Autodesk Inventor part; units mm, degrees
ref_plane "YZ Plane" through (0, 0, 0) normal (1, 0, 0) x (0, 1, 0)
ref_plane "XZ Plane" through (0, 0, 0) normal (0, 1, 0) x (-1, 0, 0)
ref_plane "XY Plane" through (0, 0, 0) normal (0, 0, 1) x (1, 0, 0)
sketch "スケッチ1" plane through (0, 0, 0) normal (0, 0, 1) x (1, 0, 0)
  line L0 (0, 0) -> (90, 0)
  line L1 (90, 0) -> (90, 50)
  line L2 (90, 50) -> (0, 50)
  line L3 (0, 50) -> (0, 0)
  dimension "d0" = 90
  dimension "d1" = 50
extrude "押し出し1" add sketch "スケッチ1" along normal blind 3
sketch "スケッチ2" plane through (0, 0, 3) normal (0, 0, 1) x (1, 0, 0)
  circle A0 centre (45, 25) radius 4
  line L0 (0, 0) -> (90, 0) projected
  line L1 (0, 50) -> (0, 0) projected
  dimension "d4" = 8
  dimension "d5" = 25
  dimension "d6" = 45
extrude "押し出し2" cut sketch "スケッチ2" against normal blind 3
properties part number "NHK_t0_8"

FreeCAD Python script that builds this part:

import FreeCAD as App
import Part
import Sketcher


def add_polygon(sketch, points):
    """Adds a closed chain of lines whose ends are joined by coincident constraints."""
    first, n = sketch.GeometryCount, len(points)
    for a, b in zip(points, points[1:] + points[:1]):
        sketch.addGeometry(Part.LineSegment(App.Vector(*a, 0), App.Vector(*b, 0)), False)
    for i in range(n):
        sketch.addConstraint(Sketcher.Constraint("Coincident", first + i, 2, first + (i + 1) % n, 1))

doc = App.newDocument("Part")
body = doc.addObject("PartDesign::Body", "Body")

# Sketch on XY plane
sketch1 = doc.addObject("Sketcher::SketchObject", "Sketch")
body.addObject(sketch1)
sketch1.AttachmentSupport = (doc.XY_Plane, [""])
sketch1.MapMode = "FlatFace"
add_polygon(sketch1, [(0, 50), (0, 0), (90, 0), (90, 50)])  # lines 0-3
sketch1.addConstraint([
    Sketcher.Constraint("Vertical", 0),
    Sketcher.Constraint("Horizontal", 1),
    Sketcher.Constraint("Vertical", 2),
    Sketcher.Constraint("Horizontal", 3),
    Sketcher.Constraint("Coincident", 0, 2, -1, 1),
    Sketcher.Constraint("DistanceX", 1, 1, 1, 2, 90.0),
    Sketcher.Constraint("DistanceY", 0, 2, 0, 1, 50.0),
])
pad1 = doc.addObject("PartDesign::Pad", "Pad")
body.addObject(pad1)
pad1.Profile = sketch1
pad1.Length = 3

# Sketch on XY plane
sketch2 = doc.addObject("Sketcher::SketchObject", "Sketch001")
body.addObject(sketch2)
sketch2.AttachmentSupport = (doc.XY_Plane, [""])
sketch2.MapMode = "FlatFace"
sketch2.AttachmentOffset = App.Placement(App.Vector(0, 0, 3), App.Rotation())
sketch2.addGeometry(Part.Circle(App.Vector(45, 25, 0), App.Vector(0, 0, 1), 4), False)
sketch2.addConstraint([
    Sketcher.Constraint("Diameter", 0, 8.0),
    Sketcher.Constraint("DistanceX", -1, 1, 0, 3, 45.0),
    Sketcher.Constraint("DistanceY", -1, 1, 0, 3, 25.0),
])
pocket1 = doc.addObject("PartDesign::Pocket", "Pocket")
body.addObject(pocket1)
pocket1.Profile = sketch2
pocket1.Length = 3

doc.recompute()
